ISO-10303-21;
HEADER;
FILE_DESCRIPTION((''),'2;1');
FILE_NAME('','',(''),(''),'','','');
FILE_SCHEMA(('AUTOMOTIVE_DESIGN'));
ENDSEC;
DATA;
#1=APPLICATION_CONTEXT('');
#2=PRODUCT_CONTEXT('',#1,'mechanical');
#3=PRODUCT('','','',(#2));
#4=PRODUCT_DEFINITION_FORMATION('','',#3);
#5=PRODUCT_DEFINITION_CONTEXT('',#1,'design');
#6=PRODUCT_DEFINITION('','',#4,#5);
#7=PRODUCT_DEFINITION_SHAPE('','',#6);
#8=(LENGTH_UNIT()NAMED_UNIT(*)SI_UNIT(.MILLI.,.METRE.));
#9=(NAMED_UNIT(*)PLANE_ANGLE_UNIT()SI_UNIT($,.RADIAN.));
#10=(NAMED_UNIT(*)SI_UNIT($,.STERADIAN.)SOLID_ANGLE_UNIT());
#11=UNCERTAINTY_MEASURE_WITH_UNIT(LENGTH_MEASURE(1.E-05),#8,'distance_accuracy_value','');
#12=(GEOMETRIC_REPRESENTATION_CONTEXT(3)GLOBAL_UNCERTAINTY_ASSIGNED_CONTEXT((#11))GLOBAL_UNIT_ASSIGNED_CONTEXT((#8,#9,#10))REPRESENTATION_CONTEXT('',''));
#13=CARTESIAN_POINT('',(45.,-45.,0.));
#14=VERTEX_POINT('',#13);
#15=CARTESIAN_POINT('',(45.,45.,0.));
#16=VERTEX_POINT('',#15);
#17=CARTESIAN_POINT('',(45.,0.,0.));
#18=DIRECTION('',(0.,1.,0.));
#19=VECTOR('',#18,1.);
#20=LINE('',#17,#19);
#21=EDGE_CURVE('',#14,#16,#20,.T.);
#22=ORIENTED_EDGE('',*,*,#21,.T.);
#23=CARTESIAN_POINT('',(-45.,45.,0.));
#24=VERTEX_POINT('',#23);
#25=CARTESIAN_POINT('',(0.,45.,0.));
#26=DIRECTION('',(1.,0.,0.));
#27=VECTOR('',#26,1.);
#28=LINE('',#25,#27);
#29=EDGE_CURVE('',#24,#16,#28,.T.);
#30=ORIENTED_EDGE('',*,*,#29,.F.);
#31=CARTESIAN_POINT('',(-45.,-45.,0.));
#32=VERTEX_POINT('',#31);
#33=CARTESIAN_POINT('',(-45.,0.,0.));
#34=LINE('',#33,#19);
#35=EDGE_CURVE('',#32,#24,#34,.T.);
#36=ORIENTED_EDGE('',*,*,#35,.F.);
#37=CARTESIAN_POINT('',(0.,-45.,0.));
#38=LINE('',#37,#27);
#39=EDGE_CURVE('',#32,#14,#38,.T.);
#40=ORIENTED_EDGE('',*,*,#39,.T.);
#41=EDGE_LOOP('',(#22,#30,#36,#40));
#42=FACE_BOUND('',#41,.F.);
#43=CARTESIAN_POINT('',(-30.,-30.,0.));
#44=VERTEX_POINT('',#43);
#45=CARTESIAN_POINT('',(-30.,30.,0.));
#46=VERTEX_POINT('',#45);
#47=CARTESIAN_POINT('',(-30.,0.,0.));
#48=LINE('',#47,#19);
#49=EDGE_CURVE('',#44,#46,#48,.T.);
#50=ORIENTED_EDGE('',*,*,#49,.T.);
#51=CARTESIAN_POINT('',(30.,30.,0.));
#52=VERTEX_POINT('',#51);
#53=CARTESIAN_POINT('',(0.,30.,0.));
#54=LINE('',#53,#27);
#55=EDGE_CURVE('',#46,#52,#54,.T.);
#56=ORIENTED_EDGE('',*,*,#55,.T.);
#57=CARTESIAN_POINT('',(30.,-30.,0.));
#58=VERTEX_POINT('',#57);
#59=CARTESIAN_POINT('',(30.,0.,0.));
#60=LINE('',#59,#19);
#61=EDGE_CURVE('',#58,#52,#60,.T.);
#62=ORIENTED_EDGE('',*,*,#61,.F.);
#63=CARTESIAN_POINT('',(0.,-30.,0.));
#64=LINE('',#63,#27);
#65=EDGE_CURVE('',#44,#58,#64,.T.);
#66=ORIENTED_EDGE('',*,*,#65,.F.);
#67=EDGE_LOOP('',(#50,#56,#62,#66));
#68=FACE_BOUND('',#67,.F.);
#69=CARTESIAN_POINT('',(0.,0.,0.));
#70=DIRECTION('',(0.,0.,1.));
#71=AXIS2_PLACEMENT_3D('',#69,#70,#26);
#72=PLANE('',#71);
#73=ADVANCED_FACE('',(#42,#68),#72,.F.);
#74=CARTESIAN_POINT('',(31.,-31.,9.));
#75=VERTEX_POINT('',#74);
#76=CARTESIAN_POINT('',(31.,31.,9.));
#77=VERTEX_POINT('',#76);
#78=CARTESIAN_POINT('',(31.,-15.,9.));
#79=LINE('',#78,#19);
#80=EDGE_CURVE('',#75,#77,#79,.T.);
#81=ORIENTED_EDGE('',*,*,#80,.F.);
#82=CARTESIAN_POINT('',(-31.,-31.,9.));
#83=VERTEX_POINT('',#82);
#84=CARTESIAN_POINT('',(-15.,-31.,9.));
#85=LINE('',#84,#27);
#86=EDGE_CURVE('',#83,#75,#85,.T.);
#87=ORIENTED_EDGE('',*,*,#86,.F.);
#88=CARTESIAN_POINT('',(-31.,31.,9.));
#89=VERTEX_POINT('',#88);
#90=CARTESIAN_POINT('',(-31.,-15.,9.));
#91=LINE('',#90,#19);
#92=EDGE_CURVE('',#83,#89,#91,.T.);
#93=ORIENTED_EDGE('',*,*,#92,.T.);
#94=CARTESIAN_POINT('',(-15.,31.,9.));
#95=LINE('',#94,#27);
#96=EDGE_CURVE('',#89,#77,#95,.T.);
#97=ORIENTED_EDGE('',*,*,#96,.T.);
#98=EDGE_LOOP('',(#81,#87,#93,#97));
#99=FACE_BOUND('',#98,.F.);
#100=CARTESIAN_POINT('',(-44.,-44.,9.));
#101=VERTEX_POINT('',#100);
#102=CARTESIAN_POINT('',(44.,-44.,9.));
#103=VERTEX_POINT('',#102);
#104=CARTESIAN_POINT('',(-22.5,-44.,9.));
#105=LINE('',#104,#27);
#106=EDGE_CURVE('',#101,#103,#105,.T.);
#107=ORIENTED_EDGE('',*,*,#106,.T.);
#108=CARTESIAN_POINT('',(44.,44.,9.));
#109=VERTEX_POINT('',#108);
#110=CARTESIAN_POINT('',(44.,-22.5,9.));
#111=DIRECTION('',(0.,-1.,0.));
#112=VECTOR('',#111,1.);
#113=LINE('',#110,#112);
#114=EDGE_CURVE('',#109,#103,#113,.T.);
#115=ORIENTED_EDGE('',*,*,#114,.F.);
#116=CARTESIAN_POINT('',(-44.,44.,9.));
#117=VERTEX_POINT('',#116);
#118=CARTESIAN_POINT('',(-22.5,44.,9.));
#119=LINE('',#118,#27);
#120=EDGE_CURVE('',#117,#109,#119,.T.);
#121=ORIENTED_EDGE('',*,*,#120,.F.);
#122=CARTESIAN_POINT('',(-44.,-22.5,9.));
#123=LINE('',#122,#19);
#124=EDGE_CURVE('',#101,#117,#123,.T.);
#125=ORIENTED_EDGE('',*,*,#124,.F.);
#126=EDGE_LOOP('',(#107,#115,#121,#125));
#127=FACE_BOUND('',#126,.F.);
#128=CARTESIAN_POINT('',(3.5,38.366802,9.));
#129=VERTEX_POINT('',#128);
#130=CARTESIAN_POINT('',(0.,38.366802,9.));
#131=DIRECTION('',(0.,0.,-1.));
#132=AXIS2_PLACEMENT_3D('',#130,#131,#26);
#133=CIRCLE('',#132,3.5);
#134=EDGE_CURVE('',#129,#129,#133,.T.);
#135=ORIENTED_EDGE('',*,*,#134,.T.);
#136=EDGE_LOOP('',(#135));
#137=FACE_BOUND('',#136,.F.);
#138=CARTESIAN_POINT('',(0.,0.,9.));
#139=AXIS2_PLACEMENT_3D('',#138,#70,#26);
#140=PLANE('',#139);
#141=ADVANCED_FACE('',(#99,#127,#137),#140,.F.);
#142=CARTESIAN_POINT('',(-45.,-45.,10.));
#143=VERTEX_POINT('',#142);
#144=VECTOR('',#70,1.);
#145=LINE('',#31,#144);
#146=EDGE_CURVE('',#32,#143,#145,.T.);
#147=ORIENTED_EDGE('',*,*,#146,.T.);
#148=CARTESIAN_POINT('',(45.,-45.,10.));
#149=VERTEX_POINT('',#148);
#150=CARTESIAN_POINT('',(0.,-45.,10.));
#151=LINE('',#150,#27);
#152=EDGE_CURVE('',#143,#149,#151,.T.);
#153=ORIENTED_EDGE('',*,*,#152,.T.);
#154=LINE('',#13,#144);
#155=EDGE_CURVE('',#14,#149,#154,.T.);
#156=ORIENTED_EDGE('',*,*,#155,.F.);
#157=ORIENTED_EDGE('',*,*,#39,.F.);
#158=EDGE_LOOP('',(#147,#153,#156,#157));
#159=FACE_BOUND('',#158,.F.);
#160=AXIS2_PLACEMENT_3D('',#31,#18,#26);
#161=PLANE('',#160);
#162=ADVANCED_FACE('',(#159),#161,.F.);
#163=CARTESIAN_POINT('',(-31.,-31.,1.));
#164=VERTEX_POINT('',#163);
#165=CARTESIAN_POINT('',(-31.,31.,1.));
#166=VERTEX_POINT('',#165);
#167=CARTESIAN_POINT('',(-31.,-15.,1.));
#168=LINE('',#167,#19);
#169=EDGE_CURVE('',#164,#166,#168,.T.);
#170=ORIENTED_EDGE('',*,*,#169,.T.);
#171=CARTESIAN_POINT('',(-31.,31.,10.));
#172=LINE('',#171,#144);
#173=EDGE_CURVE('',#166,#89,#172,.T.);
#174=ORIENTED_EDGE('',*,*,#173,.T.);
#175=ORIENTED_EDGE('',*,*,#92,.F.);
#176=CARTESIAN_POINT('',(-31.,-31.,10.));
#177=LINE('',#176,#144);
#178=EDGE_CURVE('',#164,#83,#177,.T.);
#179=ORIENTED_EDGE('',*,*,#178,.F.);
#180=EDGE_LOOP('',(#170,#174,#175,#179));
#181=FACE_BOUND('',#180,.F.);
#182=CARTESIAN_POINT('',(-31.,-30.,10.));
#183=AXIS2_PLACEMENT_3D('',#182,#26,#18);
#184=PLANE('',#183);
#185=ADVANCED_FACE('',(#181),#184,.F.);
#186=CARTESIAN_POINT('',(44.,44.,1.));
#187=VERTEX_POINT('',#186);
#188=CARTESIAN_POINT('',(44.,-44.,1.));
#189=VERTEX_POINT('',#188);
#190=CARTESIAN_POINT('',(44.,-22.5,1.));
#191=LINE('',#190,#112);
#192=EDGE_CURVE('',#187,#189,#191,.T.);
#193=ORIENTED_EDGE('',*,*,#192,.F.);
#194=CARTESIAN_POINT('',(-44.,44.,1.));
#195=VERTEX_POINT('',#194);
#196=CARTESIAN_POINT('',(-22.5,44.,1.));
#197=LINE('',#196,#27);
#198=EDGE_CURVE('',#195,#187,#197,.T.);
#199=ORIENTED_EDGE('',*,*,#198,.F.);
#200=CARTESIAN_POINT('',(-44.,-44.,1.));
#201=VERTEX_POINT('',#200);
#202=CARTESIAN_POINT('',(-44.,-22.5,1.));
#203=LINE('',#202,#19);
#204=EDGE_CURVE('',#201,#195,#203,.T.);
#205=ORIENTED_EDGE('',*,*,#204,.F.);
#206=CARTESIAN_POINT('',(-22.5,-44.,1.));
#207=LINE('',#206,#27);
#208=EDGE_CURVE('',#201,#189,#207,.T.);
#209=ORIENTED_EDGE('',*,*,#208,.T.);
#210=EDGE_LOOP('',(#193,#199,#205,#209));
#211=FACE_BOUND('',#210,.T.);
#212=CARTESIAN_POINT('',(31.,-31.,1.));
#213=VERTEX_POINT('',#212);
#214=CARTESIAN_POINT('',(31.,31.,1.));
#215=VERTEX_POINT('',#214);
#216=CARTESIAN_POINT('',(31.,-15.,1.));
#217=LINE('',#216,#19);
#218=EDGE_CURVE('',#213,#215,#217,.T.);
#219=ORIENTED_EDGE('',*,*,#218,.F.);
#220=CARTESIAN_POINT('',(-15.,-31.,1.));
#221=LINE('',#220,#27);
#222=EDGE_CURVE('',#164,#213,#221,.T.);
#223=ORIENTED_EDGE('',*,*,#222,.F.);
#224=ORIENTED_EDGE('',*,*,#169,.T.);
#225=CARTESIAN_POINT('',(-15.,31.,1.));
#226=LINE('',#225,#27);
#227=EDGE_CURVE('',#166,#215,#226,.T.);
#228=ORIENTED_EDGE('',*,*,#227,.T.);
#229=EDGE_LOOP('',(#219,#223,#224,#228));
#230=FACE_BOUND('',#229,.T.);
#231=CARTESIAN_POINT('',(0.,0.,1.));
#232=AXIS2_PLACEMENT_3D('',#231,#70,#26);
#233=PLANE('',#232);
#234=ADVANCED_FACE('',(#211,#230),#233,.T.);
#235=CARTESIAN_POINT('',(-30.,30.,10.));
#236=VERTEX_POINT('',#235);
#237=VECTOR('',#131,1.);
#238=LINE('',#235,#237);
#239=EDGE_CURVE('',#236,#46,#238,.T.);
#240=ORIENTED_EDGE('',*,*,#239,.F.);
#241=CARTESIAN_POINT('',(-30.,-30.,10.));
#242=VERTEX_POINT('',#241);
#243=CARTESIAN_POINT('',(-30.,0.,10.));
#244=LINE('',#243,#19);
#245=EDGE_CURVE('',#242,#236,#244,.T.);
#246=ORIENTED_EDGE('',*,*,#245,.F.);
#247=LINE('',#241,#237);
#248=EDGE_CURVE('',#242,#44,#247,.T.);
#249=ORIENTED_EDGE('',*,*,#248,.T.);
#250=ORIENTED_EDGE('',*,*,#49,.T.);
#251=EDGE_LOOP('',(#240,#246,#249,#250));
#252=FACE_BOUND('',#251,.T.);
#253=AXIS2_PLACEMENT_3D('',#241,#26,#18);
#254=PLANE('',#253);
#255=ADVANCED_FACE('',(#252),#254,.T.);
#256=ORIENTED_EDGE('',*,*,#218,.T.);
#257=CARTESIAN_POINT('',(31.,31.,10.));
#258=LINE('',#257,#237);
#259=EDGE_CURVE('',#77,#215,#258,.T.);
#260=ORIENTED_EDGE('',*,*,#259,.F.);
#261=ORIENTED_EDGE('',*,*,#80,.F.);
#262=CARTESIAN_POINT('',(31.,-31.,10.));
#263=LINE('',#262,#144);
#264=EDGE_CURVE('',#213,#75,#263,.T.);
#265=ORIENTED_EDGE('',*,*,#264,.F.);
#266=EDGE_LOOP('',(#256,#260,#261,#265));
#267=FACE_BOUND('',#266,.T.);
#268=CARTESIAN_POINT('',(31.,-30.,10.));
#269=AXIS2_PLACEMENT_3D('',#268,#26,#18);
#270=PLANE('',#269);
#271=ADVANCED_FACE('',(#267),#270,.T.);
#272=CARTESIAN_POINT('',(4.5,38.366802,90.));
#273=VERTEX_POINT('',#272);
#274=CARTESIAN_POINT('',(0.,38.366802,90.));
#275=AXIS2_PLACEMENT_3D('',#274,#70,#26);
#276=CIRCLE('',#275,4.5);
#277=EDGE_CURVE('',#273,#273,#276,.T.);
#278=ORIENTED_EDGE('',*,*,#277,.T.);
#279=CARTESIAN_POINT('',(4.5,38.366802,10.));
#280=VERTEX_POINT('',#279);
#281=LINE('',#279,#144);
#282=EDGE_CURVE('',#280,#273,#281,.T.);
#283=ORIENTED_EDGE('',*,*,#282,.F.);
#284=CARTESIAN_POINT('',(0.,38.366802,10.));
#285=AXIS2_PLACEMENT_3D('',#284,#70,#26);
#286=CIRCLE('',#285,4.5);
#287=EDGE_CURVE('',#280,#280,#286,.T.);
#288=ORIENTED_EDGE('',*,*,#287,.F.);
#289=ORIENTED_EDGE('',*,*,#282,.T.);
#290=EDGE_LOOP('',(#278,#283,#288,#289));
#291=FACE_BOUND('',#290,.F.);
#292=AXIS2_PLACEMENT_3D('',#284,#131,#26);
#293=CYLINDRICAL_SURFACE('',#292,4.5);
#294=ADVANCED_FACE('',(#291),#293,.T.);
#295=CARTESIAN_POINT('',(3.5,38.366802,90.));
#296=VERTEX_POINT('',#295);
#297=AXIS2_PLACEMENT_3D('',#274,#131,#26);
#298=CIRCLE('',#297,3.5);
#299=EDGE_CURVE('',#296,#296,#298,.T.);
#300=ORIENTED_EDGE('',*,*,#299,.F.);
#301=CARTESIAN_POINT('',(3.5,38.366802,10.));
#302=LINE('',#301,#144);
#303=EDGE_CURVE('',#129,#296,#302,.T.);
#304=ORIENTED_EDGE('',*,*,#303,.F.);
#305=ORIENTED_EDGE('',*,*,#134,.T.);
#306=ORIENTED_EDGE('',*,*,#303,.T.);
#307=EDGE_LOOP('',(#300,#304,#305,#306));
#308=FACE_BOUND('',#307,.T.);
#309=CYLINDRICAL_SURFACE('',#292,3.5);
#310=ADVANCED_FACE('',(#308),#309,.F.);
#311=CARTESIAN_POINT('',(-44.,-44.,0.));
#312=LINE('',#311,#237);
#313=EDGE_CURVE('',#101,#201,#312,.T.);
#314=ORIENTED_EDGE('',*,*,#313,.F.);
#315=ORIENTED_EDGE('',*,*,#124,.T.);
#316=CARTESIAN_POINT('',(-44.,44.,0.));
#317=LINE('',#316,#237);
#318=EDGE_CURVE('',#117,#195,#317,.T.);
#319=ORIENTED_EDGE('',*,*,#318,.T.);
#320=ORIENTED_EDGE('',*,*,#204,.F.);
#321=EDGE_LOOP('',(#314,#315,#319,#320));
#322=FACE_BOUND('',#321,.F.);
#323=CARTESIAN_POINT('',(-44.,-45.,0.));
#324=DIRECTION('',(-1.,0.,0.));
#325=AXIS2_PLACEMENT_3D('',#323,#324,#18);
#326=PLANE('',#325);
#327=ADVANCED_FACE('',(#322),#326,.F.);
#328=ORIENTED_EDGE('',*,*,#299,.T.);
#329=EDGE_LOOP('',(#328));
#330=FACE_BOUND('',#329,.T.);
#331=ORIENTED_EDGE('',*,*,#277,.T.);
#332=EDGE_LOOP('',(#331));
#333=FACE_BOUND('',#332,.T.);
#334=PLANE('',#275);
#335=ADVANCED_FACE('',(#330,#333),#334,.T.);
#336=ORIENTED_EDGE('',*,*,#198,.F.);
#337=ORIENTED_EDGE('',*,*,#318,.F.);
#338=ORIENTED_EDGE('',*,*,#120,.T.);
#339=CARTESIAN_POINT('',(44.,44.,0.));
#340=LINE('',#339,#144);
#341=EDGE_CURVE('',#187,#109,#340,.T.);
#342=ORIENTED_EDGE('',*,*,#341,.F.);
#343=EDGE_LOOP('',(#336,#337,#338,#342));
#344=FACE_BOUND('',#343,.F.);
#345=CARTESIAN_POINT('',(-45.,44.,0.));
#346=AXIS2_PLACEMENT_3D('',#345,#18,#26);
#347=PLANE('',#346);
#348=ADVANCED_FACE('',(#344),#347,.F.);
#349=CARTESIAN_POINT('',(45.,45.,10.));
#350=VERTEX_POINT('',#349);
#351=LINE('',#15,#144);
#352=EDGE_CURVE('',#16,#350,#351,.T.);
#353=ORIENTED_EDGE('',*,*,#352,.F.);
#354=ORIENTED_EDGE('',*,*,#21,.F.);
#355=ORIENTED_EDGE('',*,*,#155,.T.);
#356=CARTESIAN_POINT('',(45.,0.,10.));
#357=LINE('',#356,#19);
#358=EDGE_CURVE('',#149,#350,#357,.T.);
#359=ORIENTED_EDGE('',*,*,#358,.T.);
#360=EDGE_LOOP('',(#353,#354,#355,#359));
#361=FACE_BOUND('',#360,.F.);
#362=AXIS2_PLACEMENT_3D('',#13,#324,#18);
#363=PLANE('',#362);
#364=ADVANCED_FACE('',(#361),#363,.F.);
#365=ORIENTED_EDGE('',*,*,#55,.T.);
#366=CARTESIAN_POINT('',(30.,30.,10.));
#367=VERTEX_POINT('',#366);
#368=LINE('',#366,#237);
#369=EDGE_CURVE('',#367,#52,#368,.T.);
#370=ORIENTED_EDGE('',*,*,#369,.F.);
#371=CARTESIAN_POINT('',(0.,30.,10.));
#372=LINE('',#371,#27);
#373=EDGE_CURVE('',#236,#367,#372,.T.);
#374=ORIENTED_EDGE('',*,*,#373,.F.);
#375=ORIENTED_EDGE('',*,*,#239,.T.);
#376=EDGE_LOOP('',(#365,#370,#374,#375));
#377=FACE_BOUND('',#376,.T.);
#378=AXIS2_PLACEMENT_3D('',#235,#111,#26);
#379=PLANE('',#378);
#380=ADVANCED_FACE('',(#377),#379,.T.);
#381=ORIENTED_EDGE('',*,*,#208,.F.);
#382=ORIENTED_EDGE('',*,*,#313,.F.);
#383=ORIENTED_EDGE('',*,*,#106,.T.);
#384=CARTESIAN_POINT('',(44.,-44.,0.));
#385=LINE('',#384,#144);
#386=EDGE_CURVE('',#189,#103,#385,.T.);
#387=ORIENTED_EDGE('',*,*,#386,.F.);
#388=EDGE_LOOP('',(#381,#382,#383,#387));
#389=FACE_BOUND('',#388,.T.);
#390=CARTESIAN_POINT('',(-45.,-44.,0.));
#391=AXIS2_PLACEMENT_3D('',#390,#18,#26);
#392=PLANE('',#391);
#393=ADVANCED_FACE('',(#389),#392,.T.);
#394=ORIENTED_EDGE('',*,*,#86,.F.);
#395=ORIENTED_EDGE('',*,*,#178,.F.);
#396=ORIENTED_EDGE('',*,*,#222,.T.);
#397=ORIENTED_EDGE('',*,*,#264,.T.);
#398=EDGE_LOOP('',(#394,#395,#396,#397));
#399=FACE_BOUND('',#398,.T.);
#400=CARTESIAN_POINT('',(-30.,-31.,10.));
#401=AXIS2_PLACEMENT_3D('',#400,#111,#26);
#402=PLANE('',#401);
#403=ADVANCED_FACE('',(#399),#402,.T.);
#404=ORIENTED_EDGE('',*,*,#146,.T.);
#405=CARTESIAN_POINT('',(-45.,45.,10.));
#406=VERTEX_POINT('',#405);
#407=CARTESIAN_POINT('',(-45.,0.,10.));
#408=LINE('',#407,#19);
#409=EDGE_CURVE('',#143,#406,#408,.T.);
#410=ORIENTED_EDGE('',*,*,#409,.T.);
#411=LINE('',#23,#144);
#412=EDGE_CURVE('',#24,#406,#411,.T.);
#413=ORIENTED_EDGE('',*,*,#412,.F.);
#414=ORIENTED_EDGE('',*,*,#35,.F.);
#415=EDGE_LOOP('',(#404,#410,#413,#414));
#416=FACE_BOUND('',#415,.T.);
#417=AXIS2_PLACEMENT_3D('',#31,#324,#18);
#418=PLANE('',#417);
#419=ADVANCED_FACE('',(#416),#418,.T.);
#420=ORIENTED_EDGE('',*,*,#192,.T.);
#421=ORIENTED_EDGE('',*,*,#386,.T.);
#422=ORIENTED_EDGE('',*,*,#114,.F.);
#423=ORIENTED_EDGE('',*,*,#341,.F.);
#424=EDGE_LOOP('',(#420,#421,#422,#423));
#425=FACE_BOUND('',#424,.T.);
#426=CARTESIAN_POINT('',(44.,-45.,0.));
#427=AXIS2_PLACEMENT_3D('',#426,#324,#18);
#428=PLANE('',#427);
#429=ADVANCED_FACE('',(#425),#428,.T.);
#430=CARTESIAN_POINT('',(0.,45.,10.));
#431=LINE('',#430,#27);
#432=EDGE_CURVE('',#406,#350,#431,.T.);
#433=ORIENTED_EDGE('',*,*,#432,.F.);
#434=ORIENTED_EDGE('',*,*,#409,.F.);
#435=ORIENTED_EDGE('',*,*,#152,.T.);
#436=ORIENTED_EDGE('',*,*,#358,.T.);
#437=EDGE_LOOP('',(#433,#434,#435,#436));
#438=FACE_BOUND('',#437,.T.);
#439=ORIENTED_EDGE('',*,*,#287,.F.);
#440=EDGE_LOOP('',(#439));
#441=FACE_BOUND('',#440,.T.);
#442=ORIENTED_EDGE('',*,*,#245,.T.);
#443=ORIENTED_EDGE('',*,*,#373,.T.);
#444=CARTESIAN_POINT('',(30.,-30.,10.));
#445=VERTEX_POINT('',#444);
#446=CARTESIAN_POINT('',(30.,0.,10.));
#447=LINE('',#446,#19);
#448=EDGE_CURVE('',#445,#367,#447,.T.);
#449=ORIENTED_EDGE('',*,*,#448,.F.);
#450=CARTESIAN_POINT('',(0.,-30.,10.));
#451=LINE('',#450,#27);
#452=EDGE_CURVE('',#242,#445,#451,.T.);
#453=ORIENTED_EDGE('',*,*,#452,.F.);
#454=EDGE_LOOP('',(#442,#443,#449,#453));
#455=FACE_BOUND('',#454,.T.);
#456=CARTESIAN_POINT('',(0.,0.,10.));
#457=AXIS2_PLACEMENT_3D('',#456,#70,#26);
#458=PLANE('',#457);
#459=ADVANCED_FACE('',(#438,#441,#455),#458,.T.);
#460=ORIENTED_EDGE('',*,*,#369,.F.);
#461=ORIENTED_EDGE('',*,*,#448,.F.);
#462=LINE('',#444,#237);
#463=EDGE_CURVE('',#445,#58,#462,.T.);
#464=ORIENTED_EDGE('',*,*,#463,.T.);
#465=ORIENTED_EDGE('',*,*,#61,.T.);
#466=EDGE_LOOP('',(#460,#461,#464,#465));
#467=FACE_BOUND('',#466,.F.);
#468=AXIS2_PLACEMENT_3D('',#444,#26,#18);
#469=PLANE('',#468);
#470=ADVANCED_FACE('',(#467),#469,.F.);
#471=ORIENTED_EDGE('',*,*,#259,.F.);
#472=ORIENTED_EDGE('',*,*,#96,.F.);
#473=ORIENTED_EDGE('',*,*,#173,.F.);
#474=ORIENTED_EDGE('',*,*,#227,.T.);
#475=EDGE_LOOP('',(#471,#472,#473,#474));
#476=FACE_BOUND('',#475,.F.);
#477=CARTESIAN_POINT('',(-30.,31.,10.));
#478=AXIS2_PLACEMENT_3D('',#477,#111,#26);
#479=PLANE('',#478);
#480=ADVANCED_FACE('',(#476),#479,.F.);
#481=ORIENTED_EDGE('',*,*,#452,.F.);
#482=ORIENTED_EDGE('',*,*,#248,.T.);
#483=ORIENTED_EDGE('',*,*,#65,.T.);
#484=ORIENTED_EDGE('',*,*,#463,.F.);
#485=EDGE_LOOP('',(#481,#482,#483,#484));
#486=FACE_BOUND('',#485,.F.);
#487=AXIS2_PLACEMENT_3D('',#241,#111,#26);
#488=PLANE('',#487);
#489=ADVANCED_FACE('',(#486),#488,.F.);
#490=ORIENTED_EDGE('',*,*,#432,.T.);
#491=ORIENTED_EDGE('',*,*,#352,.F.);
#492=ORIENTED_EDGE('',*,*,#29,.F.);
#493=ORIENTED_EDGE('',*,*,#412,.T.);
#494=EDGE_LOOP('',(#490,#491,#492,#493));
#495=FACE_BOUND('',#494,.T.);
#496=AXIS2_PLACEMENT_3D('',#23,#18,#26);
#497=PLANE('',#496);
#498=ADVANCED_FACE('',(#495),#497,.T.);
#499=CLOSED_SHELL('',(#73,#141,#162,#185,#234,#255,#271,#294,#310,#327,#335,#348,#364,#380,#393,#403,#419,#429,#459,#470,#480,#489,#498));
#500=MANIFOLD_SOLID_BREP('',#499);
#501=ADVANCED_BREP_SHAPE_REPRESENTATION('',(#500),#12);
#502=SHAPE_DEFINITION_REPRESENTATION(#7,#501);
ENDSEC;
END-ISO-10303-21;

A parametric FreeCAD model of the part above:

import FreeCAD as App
import Part
import Sketcher
from FreeCAD import Vector


def faces_at(feature, points):
    """Names of the faces that lie closest to the given points."""
    faces = feature.Shape.Faces
    near = lambda p: min(range(len(faces)), key=lambda i: faces[i].distToShape(Part.Vertex(*p))[0])
    return sorted({f"Face{near(p) + 1}" for p in points})

doc = App.newDocument("Part")
body = doc.addObject("PartDesign::Body", "Body")

# Sketch on XY plane
sketch1 = doc.addObject("Sketcher::SketchObject", "Sketch")
body.addObject(sketch1)
sketch1.AttachmentSupport = (doc.XY_Plane, [""])
sketch1.MapMode = "FlatFace"
sketch1.addGeometry(Part.LineSegment(Vector(-45, 45, 0), Vector(-45, -45, 0)), False)
sketch1.addGeometry(Part.LineSegment(Vector(-45, -45, 0), Vector(45, -45, 0)), False)
sketch1.addGeometry(Part.LineSegment(Vector(45, -45, 0), Vector(45, 45, 0)), False)
sketch1.addGeometry(Part.LineSegment(Vector(45, 45, 0), Vector(-45, 45, 0)), False)
sketch1.addConstraint(Sketcher.Constraint("Coincident", 0, 2, 1, 1))
sketch1.addConstraint(Sketcher.Constraint("Coincident", 1, 2, 2, 1))
sketch1.addConstraint(Sketcher.Constraint("Coincident", 2, 2, 3, 1))
sketch1.addConstraint(Sketcher.Constraint("Coincident", 3, 2, 0, 1))
sketch1.addConstraint(Sketcher.Constraint("Vertical", 0))
sketch1.addConstraint(Sketcher.Constraint("Horizontal", 1))
sketch1.addConstraint(Sketcher.Constraint("Vertical", 2))
sketch1.addConstraint(Sketcher.Constraint("Horizontal", 3))
sketch1.addConstraint(Sketcher.Constraint("Symmetric", 0, 2, 2, 2, -1, 1))
sketch1.addConstraint(Sketcher.Constraint("Equal", 3, 0))
sketch1.addConstraint(Sketcher.Constraint("DistanceX", 1, 1, 1, 2, 90.0))
pad1 = doc.addObject("PartDesign::Pad", "Pad")
body.addObject(pad1)
pad1.Profile = sketch1
pad1.Length = 10

# Sketch on XY plane
sketch2 = doc.addObject("Sketcher::SketchObject", "Sketch001")
body.addObject(sketch2)
sketch2.AttachmentSupport = (doc.XY_Plane, [""])
sketch2.MapMode = "FlatFace"
sketch2.AttachmentOffset = App.Placement(Vector(0, 0, 10), App.Rotation())
sketch2.addGeometry(Part.LineSegment(Vector(-30, 30, 0), Vector(-30, -30, 0)), False)
sketch2.addGeometry(Part.LineSegment(Vector(-30, -30, 0), Vector(30, -30, 0)), False)
sketch2.addGeometry(Part.LineSegment(Vector(30, -30, 0), Vector(30, 30, 0)), False)
sketch2.addGeometry(Part.LineSegment(Vector(30, 30, 0), Vector(-30, 30, 0)), False)
sketch2.addConstraint(Sketcher.Constraint("Coincident", 0, 2, 1, 1))
sketch2.addConstraint(Sketcher.Constraint("Coincident", 1, 2, 2, 1))
sketch2.addConstraint(Sketcher.Constraint("Coincident", 2, 2, 3, 1))
sketch2.addConstraint(Sketcher.Constraint("Coincident", 3, 2, 0, 1))
sketch2.addConstraint(Sketcher.Constraint("Vertical", 0))
sketch2.addConstraint(Sketcher.Constraint("Horizontal", 1))
sketch2.addConstraint(Sketcher.Constraint("Vertical", 2))
sketch2.addConstraint(Sketcher.Constraint("Horizontal", 3))
sketch2.addConstraint(Sketcher.Constraint("Symmetric", 0, 2, 2, 2, -1, 1))
sketch2.addConstraint(Sketcher.Constraint("Equal", 3, 0))
sketch2.addConstraint(Sketcher.Constraint("DistanceX", 1, 1, 1, 2, 60.0))
pocket1 = doc.addObject("PartDesign::Pocket", "Pocket")
body.addObject(pocket1)
pocket1.Profile = sketch2
pocket1.Length = 10

# Sketch on XY plane
sketch3 = doc.addObject("Sketcher::SketchObject", "Sketch002")
body.addObject(sketch3)
sketch3.AttachmentSupport = (doc.XY_Plane, [""])
sketch3.MapMode = "FlatFace"
sketch3.AttachmentOffset = App.Placement(Vector(0, 0, 10), App.Rotation())
sketch3.addGeometry(Part.Circle(Vector(0, 38.4, 0), Vector(0, 0, 1), 4.5), False)
sketch3.addConstraint(Sketcher.Constraint("PointOnObject", 0, 3, -2))
sketch3.addConstraint(Sketcher.Constraint("Diameter", 0, 9.0))
sketch3.addConstraint(Sketcher.Constraint("DistanceY", -1, 1, 0, 3, 38.366802))
pad2 = doc.addObject("PartDesign::Pad", "Pad001")
body.addObject(pad2)
pad2.Profile = sketch3
pad2.Length = 80
doc.recompute()

thickness = doc.addObject("PartDesign::Thickness", "Thickness")
body.addObject(thickness)
thickness.Base = (pad2, faces_at(pad2, [(0, 38.367, 90)]))
thickness.Value = 1
thickness.Reversed = True
thickness.Join = "Intersection"

doc.recompute()
